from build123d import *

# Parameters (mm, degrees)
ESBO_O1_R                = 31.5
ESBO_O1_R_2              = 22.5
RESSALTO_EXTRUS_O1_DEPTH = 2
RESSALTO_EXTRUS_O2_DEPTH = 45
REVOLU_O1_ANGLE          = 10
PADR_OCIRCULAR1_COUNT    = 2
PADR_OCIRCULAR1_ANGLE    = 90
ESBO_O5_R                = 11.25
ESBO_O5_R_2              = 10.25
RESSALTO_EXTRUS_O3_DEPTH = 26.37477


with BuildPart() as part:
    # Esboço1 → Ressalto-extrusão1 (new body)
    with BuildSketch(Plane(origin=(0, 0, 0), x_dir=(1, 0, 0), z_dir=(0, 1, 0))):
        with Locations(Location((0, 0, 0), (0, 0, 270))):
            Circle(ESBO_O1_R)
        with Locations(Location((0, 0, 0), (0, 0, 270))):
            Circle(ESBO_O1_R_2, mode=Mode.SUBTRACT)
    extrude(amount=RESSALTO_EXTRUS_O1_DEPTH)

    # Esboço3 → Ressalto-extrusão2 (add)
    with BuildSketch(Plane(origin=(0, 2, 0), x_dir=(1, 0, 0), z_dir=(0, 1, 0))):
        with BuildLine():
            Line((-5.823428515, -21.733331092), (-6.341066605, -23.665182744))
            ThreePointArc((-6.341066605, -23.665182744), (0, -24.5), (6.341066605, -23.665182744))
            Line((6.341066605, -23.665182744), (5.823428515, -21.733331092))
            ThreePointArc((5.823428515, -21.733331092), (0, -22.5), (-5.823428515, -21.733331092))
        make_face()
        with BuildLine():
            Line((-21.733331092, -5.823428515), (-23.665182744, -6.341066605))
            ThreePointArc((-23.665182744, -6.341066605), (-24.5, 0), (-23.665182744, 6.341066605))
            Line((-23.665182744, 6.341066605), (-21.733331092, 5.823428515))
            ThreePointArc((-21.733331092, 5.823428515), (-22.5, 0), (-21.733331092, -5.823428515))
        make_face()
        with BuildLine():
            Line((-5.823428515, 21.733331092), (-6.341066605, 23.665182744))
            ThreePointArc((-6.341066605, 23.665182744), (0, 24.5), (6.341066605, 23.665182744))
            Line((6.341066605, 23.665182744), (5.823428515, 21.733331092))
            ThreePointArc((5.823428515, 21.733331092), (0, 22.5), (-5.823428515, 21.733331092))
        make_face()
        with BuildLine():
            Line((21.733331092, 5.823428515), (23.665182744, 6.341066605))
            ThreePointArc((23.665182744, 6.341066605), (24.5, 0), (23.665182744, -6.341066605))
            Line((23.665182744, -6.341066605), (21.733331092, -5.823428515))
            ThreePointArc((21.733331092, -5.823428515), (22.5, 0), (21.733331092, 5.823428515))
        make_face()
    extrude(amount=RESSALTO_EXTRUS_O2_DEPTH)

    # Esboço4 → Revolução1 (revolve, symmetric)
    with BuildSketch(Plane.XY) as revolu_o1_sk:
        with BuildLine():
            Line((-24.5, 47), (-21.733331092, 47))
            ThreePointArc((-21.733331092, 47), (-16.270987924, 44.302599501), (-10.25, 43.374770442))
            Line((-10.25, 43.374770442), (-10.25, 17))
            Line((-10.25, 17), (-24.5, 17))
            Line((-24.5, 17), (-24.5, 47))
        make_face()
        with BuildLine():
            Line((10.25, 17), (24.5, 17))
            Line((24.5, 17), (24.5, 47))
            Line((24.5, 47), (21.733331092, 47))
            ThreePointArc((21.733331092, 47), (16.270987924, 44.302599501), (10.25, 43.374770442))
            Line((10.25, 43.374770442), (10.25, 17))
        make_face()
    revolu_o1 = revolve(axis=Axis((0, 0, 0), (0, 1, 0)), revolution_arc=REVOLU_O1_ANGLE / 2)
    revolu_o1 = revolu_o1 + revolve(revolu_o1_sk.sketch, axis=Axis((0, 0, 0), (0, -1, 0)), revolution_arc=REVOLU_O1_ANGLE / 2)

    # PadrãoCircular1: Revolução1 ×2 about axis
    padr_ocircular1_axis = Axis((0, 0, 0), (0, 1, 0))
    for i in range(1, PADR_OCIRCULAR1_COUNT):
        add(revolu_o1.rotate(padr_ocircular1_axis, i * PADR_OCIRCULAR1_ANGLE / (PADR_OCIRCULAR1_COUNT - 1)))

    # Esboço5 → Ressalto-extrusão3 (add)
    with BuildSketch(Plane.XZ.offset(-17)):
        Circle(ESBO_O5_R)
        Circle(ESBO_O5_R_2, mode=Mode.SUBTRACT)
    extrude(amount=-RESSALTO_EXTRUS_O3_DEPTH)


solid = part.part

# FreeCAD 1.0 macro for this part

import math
import FreeCAD as App
import Part
import Sketcher
from FreeCAD import Vector
Q = App.Units.Quantity

doc = App.newDocument("Part")
body = doc.addObject("PartDesign::Body", "Body")

# Sketch on XZ plane
sketch1 = body.newObject("Sketcher::SketchObject", "Sketch")
sketch1.AttachmentSupport = (doc.getObject("XZ_Plane"), [""])
sketch1.MapMode = "FlatFace"
sketch1.addGeometry(Part.Circle(Vector(0, 0, 0), Vector(0, 0, 1), 32), False)
sketch1.addGeometry(Part.Circle(Vector(0, 0, 0), Vector(0, 0, 1), 22), False)
sketch1.addConstraint(Sketcher.Constraint("Coincident", 0, 3, -1, 1))
sketch1.addConstraint(Sketcher.Constraint("Coincident", 1, 3, -1, 1))
sketch1.addConstraint(Sketcher.Constraint("Diameter", 0, Q("63 mm")))
sketch1.addConstraint(Sketcher.Constraint("Diameter", 1, Q("45 mm")))
pad1 = body.newObject("PartDesign::Pad", "Pad")
pad1.Profile = sketch1
pad1.Length = 2
pad1.Reversed = True

# Sketch on XZ plane
sketch2 = body.newObject("Sketcher::SketchObject", "Sketch001")
sketch2.AttachmentSupport = (doc.getObject("XZ_Plane"), [""])
sketch2.MapMode = "FlatFace"
sketch2.AttachmentOffset = App.Placement(Vector(0, 0, -2), App.Rotation())
sketch2.addGeometry(Part.LineSegment(Vector(-5.8, 21.7, 0), Vector(-6.3, 23.7, 0)), False)
sketch2.addGeometry(Part.ArcOfCircle(Part.Circle(Vector(0, 0, 0), Vector(0, 0, 1), 24.5), math.radians(75), math.radians(105)), False)
sketch2.addGeometry(Part.LineSegment(Vector(6.3, 23.7, 0), Vector(5.8, 21.7, 0)), False)
sketch2.addGeometry(Part.ArcOfCircle(Part.Circle(Vector(0, 0, 0), Vector(0, 0, 1), 22.5), math.radians(75), math.radians(105)), False)
sketch2.addGeometry(Part.LineSegment(Vector(-23.7, 6.3, 0), Vector(-21.7, 5.8, 0)), False)
sketch2.addGeometry(Part.ArcOfCircle(Part.Circle(Vector(0, 0, 0), Vector(0, 0, 1), 22.5), math.radians(165), math.radians(195)), False)
sketch2.addGeometry(Part.LineSegment(Vector(-21.7, -5.8, 0), Vector(-23.7, -6.3, 0)), False)
sketch2.addGeometry(Part.ArcOfCircle(Part.Circle(Vector(0, 0, 0), Vector(0, 0, 1), 24.5), math.radians(165), math.radians(195)), False)
sketch2.addGeometry(Part.LineSegment(Vector(-6.3, -23.7, 0), Vector(-5.8, -21.7, 0)), False)
sketch2.addGeometry(Part.ArcOfCircle(Part.Circle(Vector(0, 0, 0), Vector(0, 0, 1), 22.5), math.radians(-105), math.radians(-75)), False)
sketch2.addGeometry(Part.LineSegment(Vector(5.8, -21.7, 0), Vector(6.3, -23.7, 0)), False)
sketch2.addGeometry(Part.ArcOfCircle(Part.Circle(Vector(0, 0, 0), Vector(0, 0, 1), 24.5), math.radians(-105), math.radians(-75)), False)
sketch2.addGeometry(Part.LineSegment(Vector(23.7, -6.3, 0), Vector(21.7, -5.8, 0)), False)
sketch2.addGeometry(Part.ArcOfCircle(Part.Circle(Vector(0, 0, 0), Vector(0, 0, 1), 22.5), math.radians(-15), math.radians(15)), False)
sketch2.addGeometry(Part.LineSegment(Vector(21.7, 5.8, 0), Vector(23.7, 6.3, 0)), False)
sketch2.addGeometry(Part.ArcOfCircle(Part.Circle(Vector(0, 0, 0), Vector(0, 0, 1), 24.5), math.radians(-15), math.radians(15)), False)
sketch2.addConstraint(Sketcher.Constraint("Coincident", 0, 2, 1, 2))
sketch2.addConstraint(Sketcher.Constraint("Coincident", 1, 1, 2, 1))
sketch2.addConstraint(Sketcher.Constraint("Coincident", 2, 2, 3, 1))
sketch2.addConstraint(Sketcher.Constraint("Coincident", 3, 2, 0, 1))
sketch2.addConstraint(Sketcher.Constraint("Coincident", 4, 2, 5, 1))
sketch2.addConstraint(Sketcher.Constraint("Coincident", 5, 2, 6, 1))
sketch2.addConstraint(Sketcher.Constraint("Coincident", 6, 2, 7, 2))
sketch2.addConstraint(Sketcher.Constraint("Coincident", 7, 1, 4, 1))
sketch2.addConstraint(Sketcher.Constraint("Coincident", 8, 2, 9, 1))
sketch2.addConstraint(Sketcher.Constraint("Coincident", 9, 2, 10, 1))
sketch2.addConstraint(Sketcher.Constraint("Coincident", 10, 2, 11, 2))
sketch2.addConstraint(Sketcher.Constraint("Coincident", 11, 1, 8, 1))
sketch2.addConstraint(Sketcher.Constraint("Coincident", 12, 2, 13, 1))
sketch2.addConstraint(Sketcher.Constraint("Coincident", 13, 2, 14, 1))
sketch2.addConstraint(Sketcher.Constraint("Coincident", 14, 2, 15, 2))
sketch2.addConstraint(Sketcher.Constraint("Coincident", 15, 1, 12, 1))
sketch2.addConstraint(Sketcher.Constraint("Coincident", 1, 3, -1, 1))
sketch2.addConstraint(Sketcher.Constraint("Coincident", 3, 3, -1, 1))
sketch2.addConstraint(Sketcher.Constraint("Coincident", 5, 3, -1, 1))
sketch2.addConstraint(Sketcher.Constraint("Coincident", 7, 3, -1, 1))
sketch2.addConstraint(Sketcher.Constraint("Coincident", 9, 3, -1, 1))
sketch2.addConstraint(Sketcher.Constraint("Coincident", 11, 3, -1, 1))
sketch2.addConstraint(Sketcher.Constraint("Coincident", 13, 3, -1, 1))
sketch2.addConstraint(Sketcher.Constraint("Coincident", 15, 3, -1, 1))
sketch2.addConstraint(Sketcher.Constraint("Equal", 3, 5))
sketch2.addConstraint(Sketcher.Constraint("Equal", 1, 7))
sketch2.addConstraint(Sketcher.Constraint("Equal", 5, 9))
sketch2.addConstraint(Sketcher.Constraint("Equal", 7, 11))
sketch2.addConstraint(Sketcher.Constraint("Equal", 9, 13))
sketch2.addConstraint(Sketcher.Constraint("Equal", 11, 15))
sketch2.addConstraint(Sketcher.Constraint("Perpendicular", 2, 4))
sketch2.addConstraint(Sketcher.Constraint("Perpendicular", 0, 6))
sketch2.addConstraint(Sketcher.Constraint("Perpendicular", 4, 8))
sketch2.addConstraint(Sketcher.Constraint("Perpendicular", 6, 10))
sketch2.addConstraint(Sketcher.Constraint("Perpendicular", 8, 12))
sketch2.addConstraint(Sketcher.Constraint("Perpendicular", 10, 14))
sketch2.addConstraint(Sketcher.Constraint("Horizontal", 0, 2, 1, 1))
sketch2.addConstraint(Sketcher.Constraint("Horizontal", 2, 2, 3, 2))
sketch2.addConstraint(Sketcher.Constraint("Horizontal", 8, 2, 9, 2))
sketch2.addConstraint(Sketcher.Constraint("Horizontal", 5, 2, 12, 2))
sketch2.addConstraint(Sketcher.Constraint("Horizontal", 4, 2, 13, 2))
sketch2.addConstraint(Sketcher.Constraint("Vertical", 4, 2, 5, 2))
sketch2.addConstraint(Sketcher.Constraint("Vertical", 3, 2, 8, 2))
sketch2.addConstraint(Sketcher.Constraint("Radius", 1, Q("24.5 mm")))
sketch2.addConstraint(Sketcher.Constraint("Radius", 3, Q("22.5 mm")))
sketch2.addConstraint(Sketcher.Constraint("Angle", 0, Q("105 deg")))
sketch2.addConstraint(Sketcher.Constraint("DistanceX", -1, 1, 2, 2, Q("5.823429 mm")))
sketch2.addConstraint(Sketcher.Constraint("DistanceX", 4, 2, -1, 1, Q("21.733331 mm")))
pad2 = body.newObject("PartDesign::Pad", "Pad001")
pad2.Profile = sketch2
pad2.Length = 45
pad2.Reversed = True

# Sketch on XY plane
sketch3 = body.newObject("Sketcher::SketchObject", "Sketch002")
sketch3.AttachmentSupport = (doc.getObject("XY_Plane"), [""])
sketch3.MapMode = "FlatFace"
sketch3.addGeometry(Part.LineSegment(Vector(-21.7, 47, 0), Vector(-24.5, 47, 0)), False)
sketch3.addGeometry(Part.LineSegment(Vector(-24.5, 47, 0), Vector(-24.5, 17, 0)), False)
sketch3.addGeometry(Part.LineSegment(Vector(-24.5, 17, 0), Vector(-10.2, 17, 0)), False)
sketch3.addGeometry(Part.LineSegment(Vector(-10.2, 17, 0), Vector(-10.2, 43.4, 0)), False)
sketch3.addGeometry(Part.ArcOfCircle(Part.Circle(Vector(-10.2, 63.4, 0), Vector(0, 0, 1), 20), math.radians(-125), math.radians(-90)), False)
sketch3.addGeometry(Part.LineSegment(Vector(10.2, 17, 0), Vector(24.5, 17, 0)), False)
sketch3.addGeometry(Part.LineSegment(Vector(24.5, 17, 0), Vector(24.5, 47, 0)), False)
sketch3.addGeometry(Part.LineSegment(Vector(24.5, 47, 0), Vector(21.7, 47, 0)), False)
sketch3.addGeometry(Part.ArcOfCircle(Part.Circle(Vector(10.2, 63.4, 0), Vector(0, 0, 1), 20), math.radians(-90), math.radians(-55)), False)
sketch3.addGeometry(Part.LineSegment(Vector(10.2, 43.4, 0), Vector(10.2, 17, 0)), False)
sketch3.addConstraint(Sketcher.Constraint("Coincident", 0, 2, 1, 1))
sketch3.addConstraint(Sketcher.Constraint("Coincident", 1, 2, 2, 1))
sketch3.addConstraint(Sketcher.Constraint("Coincident", 2, 2, 3, 1))
sketch3.addConstraint(Sketcher.Constraint("Coincident", 3, 2, 4, 2))
sketch3.addConstraint(Sketcher.Constraint("Coincident", 4, 1, 0, 1))
sketch3.addConstraint(Sketcher.Constraint("Coincident", 5, 2, 6, 1))
sketch3.addConstraint(Sketcher.Constraint("Coincident", 6, 2, 7, 1))
sketch3.addConstraint(Sketcher.Constraint("Coincident", 7, 2, 8, 2))
sketch3.addConstraint(Sketcher.Constraint("Coincident", 8, 1, 9, 1))
sketch3.addConstraint(Sketcher.Constraint("Coincident", 9, 2, 5, 1))
sketch3.addConstraint(Sketcher.Constraint("Horizontal", 0))
sketch3.addConstraint(Sketcher.Constraint("Vertical", 1))
sketch3.addConstraint(Sketcher.Constraint("Horizontal", 2))
sketch3.addConstraint(Sketcher.Constraint("Vertical", 3))
sketch3.addConstraint(Sketcher.Constraint("Horizontal", 5))
sketch3.addConstraint(Sketcher.Constraint("Vertical", 6))
sketch3.addConstraint(Sketcher.Constraint("Horizontal", 7))
sketch3.addConstraint(Sketcher.Constraint("Vertical", 9))
sketch3.addConstraint(Sketcher.Constraint("Equal", 4, 8))
sketch3.addConstraint(Sketcher.Constraint("Symmetric", 4, 3, 8, 3, -2))
sketch3.addConstraint(Sketcher.Constraint("Symmetric", 1, 2, 5, 2, -2))
sketch3.addConstraint(Sketcher.Constraint("Horizontal", 4, 1, 6, 2))
sketch3.addConstraint(Sketcher.Constraint("Vertical", 4, 3, 2, 2))
sketch3.addConstraint(Sketcher.Constraint("Equal", 2, 5))
sketch3.addConstraint(Sketcher.Constraint("Radius", 4, Q("20 mm")))
sketch3.addConstraint(Sketcher.Constraint("DistanceY", 1, 2, 1, 1, Q("30 mm")))
sketch3.addConstraint(Sketcher.Constraint("DistanceY", -1, 1, 0, 2, Q("47 mm")))
sketch3.addConstraint(Sketcher.Constraint("DistanceX", 1, 2, 5, 2, Q("49 mm")))
sketch3.addConstraint(Sketcher.Constraint("DistanceX", 2, 1, 2, 2, Q("14.25 mm")))
sketch3.addConstraint(Sketcher.Constraint("DistanceX", 0, 2, 0, 1, Q("2.766669 mm")))
revolution = body.newObject("PartDesign::Revolution", "Revolution")
revolution.Profile = sketch3
revolution.ReferenceAxis = (sketch3, ["V_Axis"])
revolution.Angle = 5

# Sketch on XY plane
sketch4 = body.newObject("Sketcher::SketchObject", "Sketch003")
sketch4.AttachmentSupport = (doc.getObject("XY_Plane"), [""])
sketch4.MapMode = "FlatFace"
sketch4.addGeometry(Part.LineSegment(Vector(-21.7, 47, 0), Vector(-24.5, 47, 0)), False)
sketch4.addGeometry(Part.LineSegment(Vector(-24.5, 47, 0), Vector(-24.5, 17, 0)), False)
sketch4.addGeometry(Part.LineSegment(Vector(-24.5, 17, 0), Vector(-10.2, 17, 0)), False)
sketch4.addGeometry(Part.LineSegment(Vector(-10.2, 17, 0), Vector(-10.2, 43.4, 0)), False)
sketch4.addGeometry(Part.ArcOfCircle(Part.Circle(Vector(-10.2, 63.4, 0), Vector(0, 0, 1), 20), math.radians(-125), math.radians(-90)), False)
sketch4.addGeometry(Part.LineSegment(Vector(10.2, 17, 0), Vector(24.5, 17, 0)), False)
sketch4.addGeometry(Part.LineSegment(Vector(24.5, 17, 0), Vector(24.5, 47, 0)), False)
sketch4.addGeometry(Part.LineSegment(Vector(24.5, 47, 0), Vector(21.7, 47, 0)), False)
sketch4.addGeometry(Part.ArcOfCircle(Part.Circle(Vector(10.2, 63.4, 0), Vector(0, 0, 1), 20), math.radians(-90), math.radians(-55)), False)
sketch4.addGeometry(Part.LineSegment(Vector(10.2, 43.4, 0), Vector(10.2, 17, 0)), False)
sketch4.addConstraint(Sketcher.Constraint("Coincident", 0, 2, 1, 1))
sketch4.addConstraint(Sketcher.Constraint("Coincident", 1, 2, 2, 1))
sketch4.addConstraint(Sketcher.Constraint("Coincident", 2, 2, 3, 1))
sketch4.addConstraint(Sketcher.Constraint("Coincident", 3, 2, 4, 2))
sketch4.addConstraint(Sketcher.Constraint("Coincident", 4, 1, 0, 1))
sketch4.addConstraint(Sketcher.Constraint("Coincident", 5, 2, 6, 1))
sketch4.addConstraint(Sketcher.Constraint("Coincident", 6, 2, 7, 1))
sketch4.addConstraint(Sketcher.Constraint("Coincident", 7, 2, 8, 2))
sketch4.addConstraint(Sketcher.Constraint("Coincident", 8, 1, 9, 1))
sketch4.addConstraint(Sketcher.Constraint("Coincident", 9, 2, 5, 1))
sketch4.addConstraint(Sketcher.Constraint("Horizontal", 0))
sketch4.addConstraint(Sketcher.Constraint("Vertical", 1))
sketch4.addConstraint(Sketcher.Constraint("Horizontal", 2))
sketch4.addConstraint(Sketcher.Constraint("Vertical", 3))
sketch4.addConstraint(Sketcher.Constraint("Horizontal", 5))
sketch4.addConstraint(Sketcher.Constraint("Vertical", 6))
sketch4.addConstraint(Sketcher.Constraint("Horizontal", 7))
sketch4.addConstraint(Sketcher.Constraint("Vertical", 9))
sketch4.addConstraint(Sketcher.Constraint("Equal", 4, 8))
sketch4.addConstraint(Sketcher.Constraint("Symmetric", 4, 3, 8, 3, -2))
sketch4.addConstraint(Sketcher.Constraint("Symmetric", 1, 2, 5, 2, -2))
sketch4.addConstraint(Sketcher.Constraint("Horizontal", 4, 1, 6, 2))
sketch4.addConstraint(Sketcher.Constraint("Vertical", 4, 3, 2, 2))
sketch4.addConstraint(Sketcher.Constraint("Equal", 2, 5))
sketch4.addConstraint(Sketcher.Constraint("Radius", 4, Q("20 mm")))
sketch4.addConstraint(Sketcher.Constraint("DistanceY", 1, 2, 1, 1, Q("30 mm")))
sketch4.addConstraint(Sketcher.Constraint("DistanceY", -1, 1, 0, 2, Q("47 mm")))
sketch4.addConstraint(Sketcher.Constraint("DistanceX", 1, 2, 5, 2, Q("49 mm")))
sketch4.addConstraint(Sketcher.Constraint("DistanceX", 2, 1, 2, 2, Q("14.25 mm")))
sketch4.addConstraint(Sketcher.Constraint("DistanceX", 0, 2, 0, 1, Q("2.766669 mm")))
revolution2 = body.newObject("PartDesign::Revolution", "Revolution001")
revolution2.Profile = sketch4
revolution2.ReferenceAxis = (sketch4, ["V_Axis"])
revolution2.Angle = 5
revolution2.Reversed = True
doc.recompute()

polarpattern = body.newObject("PartDesign::PolarPattern", "PolarPattern")
polarpattern.Originals = [revolution, revolution2]
polarpattern.Axis = (doc.getObject("Y_Axis"), [""])
polarpattern.Angle = 90
polarpattern.Occurrences = 2
body.Tip = polarpattern

# Sketch on XZ plane
sketch5 = body.newObject("Sketcher::SketchObject", "Sketch004")
sketch5.AttachmentSupport = (doc.getObject("XZ_Plane"), [""])
sketch5.MapMode = "FlatFace"
sketch5.AttachmentOffset = App.Placement(Vector(0, 0, -17), App.Rotation())
sketch5.addGeometry(Part.Circle(Vector(0, 0, 0), Vector(0, 0, 1), 11), False)
sketch5.addGeometry(Part.Circle(Vector(0, 0, 0), Vector(0, 0, 1), 10), False)
sketch5.addConstraint(Sketcher.Constraint("Coincident", 0, 3, -1, 1))
sketch5.addConstraint(Sketcher.Constraint("Coincident", 1, 3, -1, 1))
sketch5.addConstraint(Sketcher.Constraint("Diameter", 0, Q("22.5 mm")))
sketch5.addConstraint(Sketcher.Constraint("Diameter", 1, Q("20.5 mm")))
pad3 = body.newObject("PartDesign::Pad", "Pad002")
pad3.Profile = sketch5
pad3.Length = 26.37477
pad3.Reversed = True

doc.recompute()
